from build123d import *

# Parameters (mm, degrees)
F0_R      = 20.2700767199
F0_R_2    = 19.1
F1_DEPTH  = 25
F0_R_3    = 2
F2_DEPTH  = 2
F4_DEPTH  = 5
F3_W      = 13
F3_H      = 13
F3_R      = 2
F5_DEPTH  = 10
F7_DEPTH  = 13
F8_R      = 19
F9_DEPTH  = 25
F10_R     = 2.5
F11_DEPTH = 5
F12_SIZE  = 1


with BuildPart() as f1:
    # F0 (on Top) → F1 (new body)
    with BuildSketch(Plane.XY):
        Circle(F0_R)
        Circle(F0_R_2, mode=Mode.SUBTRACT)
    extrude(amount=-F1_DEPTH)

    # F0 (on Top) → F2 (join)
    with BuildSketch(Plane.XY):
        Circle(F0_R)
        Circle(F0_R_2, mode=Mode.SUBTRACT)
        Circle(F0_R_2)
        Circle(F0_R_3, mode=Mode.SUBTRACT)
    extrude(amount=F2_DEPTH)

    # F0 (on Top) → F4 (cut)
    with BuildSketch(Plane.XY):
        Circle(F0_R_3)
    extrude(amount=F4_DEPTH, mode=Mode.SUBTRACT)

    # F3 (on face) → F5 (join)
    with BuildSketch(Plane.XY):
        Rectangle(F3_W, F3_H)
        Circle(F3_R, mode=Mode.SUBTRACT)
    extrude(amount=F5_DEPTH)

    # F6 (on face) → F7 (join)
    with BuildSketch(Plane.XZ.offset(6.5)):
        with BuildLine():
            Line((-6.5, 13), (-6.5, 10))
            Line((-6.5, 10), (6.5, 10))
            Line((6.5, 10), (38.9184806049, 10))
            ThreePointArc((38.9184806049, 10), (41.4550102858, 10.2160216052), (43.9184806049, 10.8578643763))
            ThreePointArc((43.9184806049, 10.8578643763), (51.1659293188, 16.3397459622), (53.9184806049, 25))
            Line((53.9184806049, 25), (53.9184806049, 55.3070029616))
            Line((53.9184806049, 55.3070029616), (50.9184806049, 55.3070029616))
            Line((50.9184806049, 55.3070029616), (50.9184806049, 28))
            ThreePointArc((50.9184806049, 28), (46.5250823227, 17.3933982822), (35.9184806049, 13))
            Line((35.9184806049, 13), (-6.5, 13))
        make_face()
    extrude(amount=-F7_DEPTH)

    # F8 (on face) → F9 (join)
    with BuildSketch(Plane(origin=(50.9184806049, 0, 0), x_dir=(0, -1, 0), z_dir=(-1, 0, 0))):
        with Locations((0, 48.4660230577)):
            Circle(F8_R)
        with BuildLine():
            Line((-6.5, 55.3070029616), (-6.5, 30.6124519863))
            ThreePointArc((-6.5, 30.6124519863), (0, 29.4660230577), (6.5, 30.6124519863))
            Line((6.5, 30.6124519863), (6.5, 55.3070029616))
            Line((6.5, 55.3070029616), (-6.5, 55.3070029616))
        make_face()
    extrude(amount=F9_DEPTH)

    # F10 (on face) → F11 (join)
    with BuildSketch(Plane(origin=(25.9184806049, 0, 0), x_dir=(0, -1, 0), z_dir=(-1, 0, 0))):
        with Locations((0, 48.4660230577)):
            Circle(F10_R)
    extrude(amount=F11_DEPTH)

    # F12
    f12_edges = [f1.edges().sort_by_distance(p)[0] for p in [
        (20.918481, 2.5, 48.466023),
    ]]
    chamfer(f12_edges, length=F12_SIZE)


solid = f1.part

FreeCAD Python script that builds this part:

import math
import FreeCAD as App
import Part
import Sketcher
from FreeCAD import Vector
Q = App.Units.Quantity


def edges_at(feature, points):
    """Names of the edges that pass closest to the given points."""
    edges = feature.Shape.Edges
    near = lambda p: min(range(len(edges)), key=lambda i: edges[i].distToShape(Part.Vertex(*p))[0])
    return sorted({f"Edge{near(p) + 1}" for p in points})

doc = App.newDocument("Part")
params = doc.addObject("Spreadsheet::Sheet", "Params")
for row, (alias, value) in enumerate([
    ("sketch1_diameter", "38.2 mm"),
    ("pad1_length", "25 mm"),
    ("sketch2_diameter", "4 mm"),
    ("pad2_length", "2 mm"),
    ("sketch3_diameter", "4 mm"),
    ("pocket1_length", "5 mm"),
    ("sketch4_diameter", "4 mm"),
    ("sketch4_width", "13 mm"),
    ("pad3_length", "10 mm"),
    ("sketch5_radius", "15 mm"),
    ("sketch5_width", "3 mm"),
    ("pad4_length", "13 mm"),
    ("sketch6_radius", "19 mm"),
    ("pad5_length", "25 mm"),
    ("sketch7_diameter", "5 mm"),
    ("pad6_length", "5 mm"),
    ("chamfer_size", "1 mm"),
], start=1):
    params.set(f"A{row}", alias)
    params.set(f"B{row}", "=" + value)
    params.setAlias(f"B{row}", alias)

body = doc.addObject("PartDesign::Body", "Body")

sketch1 = doc.addObject("Sketcher::SketchObject", "Sketch")
body.addObject(sketch1)
sketch1.AttachmentSupport = (doc.XY_Plane, [""])
sketch1.MapMode = "FlatFace"
sketch1.addGeometry([
    Part.Circle(Vector(0, 0, 0), Vector(0, 0, 1), 20),
    Part.Circle(Vector(0, 0, 0), Vector(0, 0, 1), 19),
], False)
sketch1.addConstraint([
    Sketcher.Constraint("Coincident", 0, 3, -1, 1),
    Sketcher.Constraint("Coincident", 1, 3, -1, 1),
    Sketcher.Constraint("Diameter", 1, Q("38.2 mm")),
    Sketcher.Constraint("Diameter", 0, Q("40.540153 mm")),
])
sketch1.setExpression("Constraints[2]", "Params.sketch1_diameter")
pad1 = doc.addObject("PartDesign::Pad", "Pad")
body.addObject(pad1)
pad1.Profile = sketch1
pad1.setExpression("Length", "Params.pad1_length")
pad1.Reversed = True

sketch2 = doc.addObject("Sketcher::SketchObject", "Sketch001")
body.addObject(sketch2)
sketch2.AttachmentSupport = (doc.XY_Plane, [""])
sketch2.MapMode = "FlatFace"
sketch2.addGeometry([
    Part.Circle(Vector(0, 0, 0), Vector(0, 0, 1), 20.3),
    Part.Circle(Vector(0, 0, 0), Vector(0, 0, 1), 2),
], False)
sketch2.addConstraint([
    Sketcher.Constraint("Coincident", 0, 3, -1, 1),
    Sketcher.Constraint("Coincident", 1, 3, -1, 1),
    Sketcher.Constraint("Diameter", 1, Q("4 mm")),
    Sketcher.Constraint("Diameter", 0, Q("40.540153 mm")),
])
sketch2.setExpression("Constraints[2]", "Params.sketch2_diameter")
pad2 = doc.addObject("PartDesign::Pad", "Pad001")
body.addObject(pad2)
pad2.Profile = sketch2
pad2.setExpression("Length", "Params.pad2_length")

sketch3 = doc.addObject("Sketcher::SketchObject", "Sketch002")
body.addObject(sketch3)
sketch3.AttachmentSupport = (doc.XY_Plane, [""])
sketch3.MapMode = "FlatFace"
sketch3.addGeometry(Part.Circle(Vector(0, 0, 0), Vector(0, 0, 1), 2), False)
sketch3.addConstraint([
    Sketcher.Constraint("Coincident", 0, 3, -1, 1),
    Sketcher.Constraint("Diameter", 0, Q("4 mm")),
])
sketch3.setExpression("Constraints[1]", "Params.sketch3_diameter")
pocket1 = doc.addObject("PartDesign::Pocket", "Pocket")
body.addObject(pocket1)
pocket1.Profile = sketch3
pocket1.setExpression("Length", "Params.pocket1_length")
pocket1.Reversed = True

sketch4 = doc.addObject("Sketcher::SketchObject", "Sketch003")
body.addObject(sketch4)
sketch4.AttachmentSupport = (doc.XY_Plane, [""])
sketch4.MapMode = "FlatFace"
sketch4.addGeometry([
    Part.LineSegment(Vector(-6.5, 6.5, 0), Vector(-6.5, -6.5, 0)),
    Part.LineSegment(Vector(-6.5, -6.5, 0), Vector(6.5, -6.5, 0)),
    Part.LineSegment(Vector(6.5, -6.5, 0), Vector(6.5, 6.5, 0)),
    Part.LineSegment(Vector(6.5, 6.5, 0), Vector(-6.5, 6.5, 0)),
    Part.Circle(Vector(0, 0, 0), Vector(0, 0, 1), 2),
], False)
sketch4.addConstraint([
    Sketcher.Constraint("Coincident", 0, 2, 1, 1),
    Sketcher.Constraint("Coincident", 1, 2, 2, 1),
    Sketcher.Constraint("Coincident", 2, 2, 3, 1),
    Sketcher.Constraint("Coincident", 3, 2, 0, 1),
    Sketcher.Constraint("Vertical", 0),
    Sketcher.Constraint("Horizontal", 1),
    Sketcher.Constraint("Vertical", 2),
    Sketcher.Constraint("Horizontal", 3),
    Sketcher.Constraint("Coincident", 4, 3, -1, 1),
    Sketcher.Constraint("Symmetric", 0, 2, 2, 2, -1, 1),
    Sketcher.Constraint("Equal", 3, 0),
    Sketcher.Constraint("Diameter", 4, Q("4 mm")),
    Sketcher.Constraint("DistanceX", 1, 1, 1, 2, Q("13 mm")),
])
sketch4.setExpression("Constraints[11]", "Params.sketch4_diameter")
sketch4.setExpression("Constraints[12]", "Params.sketch4_width")
pad3 = doc.addObject("PartDesign::Pad", "Pad002")
body.addObject(pad3)
pad3.Profile = sketch4
pad3.setExpression("Length", "Params.pad3_length")

sketch5 = doc.addObject("Sketcher::SketchObject", "Sketch004")
body.addObject(sketch5)
sketch5.AttachmentSupport = (doc.XZ_Plane, [""])
sketch5.MapMode = "FlatFace"
sketch5.AttachmentOffset = App.Placement(Vector(0, 0, 6.5), App.Rotation())
sketch5.addGeometry([
    Part.LineSegment(Vector(-6.5, 13, 0), Vector(-6.5, 10, 0)),
    Part.LineSegment(Vector(-6.5, 10, 0), Vector(38.9, 10, 0)),
    Part.ArcOfCircle(Part.Circle(Vector(38.9, 25, 0), Vector(0, 0, 1), 15), math.radians(-90), math.radians(-70.53)),
    Part.ArcOfCircle(Part.Circle(Vector(38.9, 25, 0), Vector(0, 0, 1), 15), math.radians(-71), math.radians(0)),
    Part.LineSegment(Vector(53.9, 25, 0), Vector(53.9, 55.3, 0)),
    Part.LineSegment(Vector(53.9, 55.3, 0), Vector(50.9, 55.3, 0)),
    Part.LineSegment(Vector(50.9, 55.3, 0), Vector(50.9, 28, 0)),
    Part.ArcOfCircle(Part.Circle(Vector(35.9, 28, 0), Vector(0, 0, 1), 15), math.radians(-90), math.radians(0)),
    Part.LineSegment(Vector(35.9, 13, 0), Vector(-6.5, 13, 0)),
], False)
sketch5.addConstraint([
    Sketcher.Constraint("Coincident", 0, 2, 1, 1),
    Sketcher.Constraint("Tangent", 1, 2, 2, 1),
    Sketcher.Constraint("Tangent", 2, 2, 3, 1),
    Sketcher.Constraint("Tangent", 3, 2, 4, 1),
    Sketcher.Constraint("Coincident", 4, 2, 5, 1),
    Sketcher.Constraint("Coincident", 5, 2, 6, 1),
    Sketcher.Constraint("Tangent", 6, 2, 7, 2),
    Sketcher.Constraint("Tangent", 7, 1, 8, 1),
    Sketcher.Constraint("Coincident", 8, 2, 0, 1),
    Sketcher.Constraint("Vertical", 0),
    Sketcher.Constraint("Horizontal", 1),
    Sketcher.Constraint("Vertical", 4),
    Sketcher.Constraint("Horizontal", 5),
    Sketcher.Constraint("Vertical", 6),
    Sketcher.Constraint("Horizontal", 8),
    Sketcher.Constraint("Equal", 2, 3),
    Sketcher.Constraint("Equal", 3, 7),
    Sketcher.Constraint("Equal", 5, 0),
    Sketcher.Constraint("Radius", 2, Q("15 mm")),
    Sketcher.Constraint("DistanceX", 5, 2, 5, 1, Q("3 mm")),
    Sketcher.Constraint("DistanceY", -1, 1, 2, 3, Q("25 mm")),
    Sketcher.Constraint("DistanceX", 1, 2, 2, 2, Q("5 mm")),
    Sketcher.Constraint("DistanceX", 0, 2, -1, 1, Q("6.5 mm")),
    Sketcher.Constraint("DistanceX", 1, 1, 1, 2, Q("45.418481 mm")),
    Sketcher.Constraint("DistanceY", 4, 1, 4, 2, Q("30.307003 mm")),
])
sketch5.setExpression("Constraints[18]", "Params.sketch5_radius")
sketch5.setExpression("Constraints[19]", "Params.sketch5_width")
pad4 = doc.addObject("PartDesign::Pad", "Pad003")
body.addObject(pad4)
pad4.Profile = sketch5
pad4.setExpression("Length", "Params.pad4_length")
pad4.Reversed = True

sketch6 = doc.addObject("Sketcher::SketchObject", "Sketch005")
body.addObject(sketch6)
sketch6.AttachmentSupport = (doc.YZ_Plane, [""])
sketch6.MapMode = "FlatFace"
sketch6.AttachmentOffset = App.Placement(Vector(0, 0, 50.918481), App.Rotation())
sketch6.addGeometry([
    Part.ArcOfCircle(Part.Circle(Vector(0, 48, 0), Vector(0, 0, 1), 19), math.radians(-70), math.radians(250)),
    Part.ArcOfCircle(Part.Circle(Vector(0, 48, 0), Vector(0, 0, 1), 19), math.radians(-110), math.radians(-70)),
], False)
sketch6.addConstraint([
    Sketcher.Constraint("Tangent", 0, 1, 1, 2),
    Sketcher.Constraint("Coincident", 1, 1, 0, 2),
    Sketcher.Constraint("Symmetric", 0, 1, 1, 1, -2),
    Sketcher.Constraint("Radius", 0, Q("19 mm")),
    Sketcher.Constraint("DistanceX", 1, 1, 0, 1, Q("13 mm")),
    Sketcher.Constraint("DistanceY", -1, 1, 0, 1, Q("30.612452 mm")),
])
sketch6.setExpression("Constraints[3]", "Params.sketch6_radius")
pad5 = doc.addObject("PartDesign::Pad", "Pad004")
body.addObject(pad5)
pad5.Profile = sketch6
pad5.setExpression("Length", "Params.pad5_length")
pad5.Reversed = True

sketch7 = doc.addObject("Sketcher::SketchObject", "Sketch006")
body.addObject(sketch7)
sketch7.AttachmentSupport = (doc.YZ_Plane, [""])
sketch7.MapMode = "FlatFace"
sketch7.AttachmentOffset = App.Placement(Vector(0, 0, 25.918481), App.Rotation())
sketch7.addGeometry(Part.Circle(Vector(0, 48.5, 0), Vector(0, 0, 1), 2.5), False)
sketch7.addConstraint([
    Sketcher.Constraint("PointOnObject", 0, 3, -2),
    Sketcher.Constraint("Diameter", 0, Q("5 mm")),
    Sketcher.Constraint("DistanceY", -1, 1, 0, 3, Q("48.466023 mm")),
])
sketch7.setExpression("Constraints[1]", "Params.sketch7_diameter")
pad6 = doc.addObject("PartDesign::Pad", "Pad005")
body.addObject(pad6)
pad6.Profile = sketch7
pad6.setExpression("Length", "Params.pad6_length")
pad6.Reversed = True
doc.recompute()

chamfer = doc.addObject("PartDesign::Chamfer", "Chamfer")
body.addObject(chamfer)
chamfer.Base = (pad6, edges_at(pad6, [(20.918, 2.5, 48.466)]))
chamfer.setExpression("Size", "Params.chamfer_size")

doc.recompute()
